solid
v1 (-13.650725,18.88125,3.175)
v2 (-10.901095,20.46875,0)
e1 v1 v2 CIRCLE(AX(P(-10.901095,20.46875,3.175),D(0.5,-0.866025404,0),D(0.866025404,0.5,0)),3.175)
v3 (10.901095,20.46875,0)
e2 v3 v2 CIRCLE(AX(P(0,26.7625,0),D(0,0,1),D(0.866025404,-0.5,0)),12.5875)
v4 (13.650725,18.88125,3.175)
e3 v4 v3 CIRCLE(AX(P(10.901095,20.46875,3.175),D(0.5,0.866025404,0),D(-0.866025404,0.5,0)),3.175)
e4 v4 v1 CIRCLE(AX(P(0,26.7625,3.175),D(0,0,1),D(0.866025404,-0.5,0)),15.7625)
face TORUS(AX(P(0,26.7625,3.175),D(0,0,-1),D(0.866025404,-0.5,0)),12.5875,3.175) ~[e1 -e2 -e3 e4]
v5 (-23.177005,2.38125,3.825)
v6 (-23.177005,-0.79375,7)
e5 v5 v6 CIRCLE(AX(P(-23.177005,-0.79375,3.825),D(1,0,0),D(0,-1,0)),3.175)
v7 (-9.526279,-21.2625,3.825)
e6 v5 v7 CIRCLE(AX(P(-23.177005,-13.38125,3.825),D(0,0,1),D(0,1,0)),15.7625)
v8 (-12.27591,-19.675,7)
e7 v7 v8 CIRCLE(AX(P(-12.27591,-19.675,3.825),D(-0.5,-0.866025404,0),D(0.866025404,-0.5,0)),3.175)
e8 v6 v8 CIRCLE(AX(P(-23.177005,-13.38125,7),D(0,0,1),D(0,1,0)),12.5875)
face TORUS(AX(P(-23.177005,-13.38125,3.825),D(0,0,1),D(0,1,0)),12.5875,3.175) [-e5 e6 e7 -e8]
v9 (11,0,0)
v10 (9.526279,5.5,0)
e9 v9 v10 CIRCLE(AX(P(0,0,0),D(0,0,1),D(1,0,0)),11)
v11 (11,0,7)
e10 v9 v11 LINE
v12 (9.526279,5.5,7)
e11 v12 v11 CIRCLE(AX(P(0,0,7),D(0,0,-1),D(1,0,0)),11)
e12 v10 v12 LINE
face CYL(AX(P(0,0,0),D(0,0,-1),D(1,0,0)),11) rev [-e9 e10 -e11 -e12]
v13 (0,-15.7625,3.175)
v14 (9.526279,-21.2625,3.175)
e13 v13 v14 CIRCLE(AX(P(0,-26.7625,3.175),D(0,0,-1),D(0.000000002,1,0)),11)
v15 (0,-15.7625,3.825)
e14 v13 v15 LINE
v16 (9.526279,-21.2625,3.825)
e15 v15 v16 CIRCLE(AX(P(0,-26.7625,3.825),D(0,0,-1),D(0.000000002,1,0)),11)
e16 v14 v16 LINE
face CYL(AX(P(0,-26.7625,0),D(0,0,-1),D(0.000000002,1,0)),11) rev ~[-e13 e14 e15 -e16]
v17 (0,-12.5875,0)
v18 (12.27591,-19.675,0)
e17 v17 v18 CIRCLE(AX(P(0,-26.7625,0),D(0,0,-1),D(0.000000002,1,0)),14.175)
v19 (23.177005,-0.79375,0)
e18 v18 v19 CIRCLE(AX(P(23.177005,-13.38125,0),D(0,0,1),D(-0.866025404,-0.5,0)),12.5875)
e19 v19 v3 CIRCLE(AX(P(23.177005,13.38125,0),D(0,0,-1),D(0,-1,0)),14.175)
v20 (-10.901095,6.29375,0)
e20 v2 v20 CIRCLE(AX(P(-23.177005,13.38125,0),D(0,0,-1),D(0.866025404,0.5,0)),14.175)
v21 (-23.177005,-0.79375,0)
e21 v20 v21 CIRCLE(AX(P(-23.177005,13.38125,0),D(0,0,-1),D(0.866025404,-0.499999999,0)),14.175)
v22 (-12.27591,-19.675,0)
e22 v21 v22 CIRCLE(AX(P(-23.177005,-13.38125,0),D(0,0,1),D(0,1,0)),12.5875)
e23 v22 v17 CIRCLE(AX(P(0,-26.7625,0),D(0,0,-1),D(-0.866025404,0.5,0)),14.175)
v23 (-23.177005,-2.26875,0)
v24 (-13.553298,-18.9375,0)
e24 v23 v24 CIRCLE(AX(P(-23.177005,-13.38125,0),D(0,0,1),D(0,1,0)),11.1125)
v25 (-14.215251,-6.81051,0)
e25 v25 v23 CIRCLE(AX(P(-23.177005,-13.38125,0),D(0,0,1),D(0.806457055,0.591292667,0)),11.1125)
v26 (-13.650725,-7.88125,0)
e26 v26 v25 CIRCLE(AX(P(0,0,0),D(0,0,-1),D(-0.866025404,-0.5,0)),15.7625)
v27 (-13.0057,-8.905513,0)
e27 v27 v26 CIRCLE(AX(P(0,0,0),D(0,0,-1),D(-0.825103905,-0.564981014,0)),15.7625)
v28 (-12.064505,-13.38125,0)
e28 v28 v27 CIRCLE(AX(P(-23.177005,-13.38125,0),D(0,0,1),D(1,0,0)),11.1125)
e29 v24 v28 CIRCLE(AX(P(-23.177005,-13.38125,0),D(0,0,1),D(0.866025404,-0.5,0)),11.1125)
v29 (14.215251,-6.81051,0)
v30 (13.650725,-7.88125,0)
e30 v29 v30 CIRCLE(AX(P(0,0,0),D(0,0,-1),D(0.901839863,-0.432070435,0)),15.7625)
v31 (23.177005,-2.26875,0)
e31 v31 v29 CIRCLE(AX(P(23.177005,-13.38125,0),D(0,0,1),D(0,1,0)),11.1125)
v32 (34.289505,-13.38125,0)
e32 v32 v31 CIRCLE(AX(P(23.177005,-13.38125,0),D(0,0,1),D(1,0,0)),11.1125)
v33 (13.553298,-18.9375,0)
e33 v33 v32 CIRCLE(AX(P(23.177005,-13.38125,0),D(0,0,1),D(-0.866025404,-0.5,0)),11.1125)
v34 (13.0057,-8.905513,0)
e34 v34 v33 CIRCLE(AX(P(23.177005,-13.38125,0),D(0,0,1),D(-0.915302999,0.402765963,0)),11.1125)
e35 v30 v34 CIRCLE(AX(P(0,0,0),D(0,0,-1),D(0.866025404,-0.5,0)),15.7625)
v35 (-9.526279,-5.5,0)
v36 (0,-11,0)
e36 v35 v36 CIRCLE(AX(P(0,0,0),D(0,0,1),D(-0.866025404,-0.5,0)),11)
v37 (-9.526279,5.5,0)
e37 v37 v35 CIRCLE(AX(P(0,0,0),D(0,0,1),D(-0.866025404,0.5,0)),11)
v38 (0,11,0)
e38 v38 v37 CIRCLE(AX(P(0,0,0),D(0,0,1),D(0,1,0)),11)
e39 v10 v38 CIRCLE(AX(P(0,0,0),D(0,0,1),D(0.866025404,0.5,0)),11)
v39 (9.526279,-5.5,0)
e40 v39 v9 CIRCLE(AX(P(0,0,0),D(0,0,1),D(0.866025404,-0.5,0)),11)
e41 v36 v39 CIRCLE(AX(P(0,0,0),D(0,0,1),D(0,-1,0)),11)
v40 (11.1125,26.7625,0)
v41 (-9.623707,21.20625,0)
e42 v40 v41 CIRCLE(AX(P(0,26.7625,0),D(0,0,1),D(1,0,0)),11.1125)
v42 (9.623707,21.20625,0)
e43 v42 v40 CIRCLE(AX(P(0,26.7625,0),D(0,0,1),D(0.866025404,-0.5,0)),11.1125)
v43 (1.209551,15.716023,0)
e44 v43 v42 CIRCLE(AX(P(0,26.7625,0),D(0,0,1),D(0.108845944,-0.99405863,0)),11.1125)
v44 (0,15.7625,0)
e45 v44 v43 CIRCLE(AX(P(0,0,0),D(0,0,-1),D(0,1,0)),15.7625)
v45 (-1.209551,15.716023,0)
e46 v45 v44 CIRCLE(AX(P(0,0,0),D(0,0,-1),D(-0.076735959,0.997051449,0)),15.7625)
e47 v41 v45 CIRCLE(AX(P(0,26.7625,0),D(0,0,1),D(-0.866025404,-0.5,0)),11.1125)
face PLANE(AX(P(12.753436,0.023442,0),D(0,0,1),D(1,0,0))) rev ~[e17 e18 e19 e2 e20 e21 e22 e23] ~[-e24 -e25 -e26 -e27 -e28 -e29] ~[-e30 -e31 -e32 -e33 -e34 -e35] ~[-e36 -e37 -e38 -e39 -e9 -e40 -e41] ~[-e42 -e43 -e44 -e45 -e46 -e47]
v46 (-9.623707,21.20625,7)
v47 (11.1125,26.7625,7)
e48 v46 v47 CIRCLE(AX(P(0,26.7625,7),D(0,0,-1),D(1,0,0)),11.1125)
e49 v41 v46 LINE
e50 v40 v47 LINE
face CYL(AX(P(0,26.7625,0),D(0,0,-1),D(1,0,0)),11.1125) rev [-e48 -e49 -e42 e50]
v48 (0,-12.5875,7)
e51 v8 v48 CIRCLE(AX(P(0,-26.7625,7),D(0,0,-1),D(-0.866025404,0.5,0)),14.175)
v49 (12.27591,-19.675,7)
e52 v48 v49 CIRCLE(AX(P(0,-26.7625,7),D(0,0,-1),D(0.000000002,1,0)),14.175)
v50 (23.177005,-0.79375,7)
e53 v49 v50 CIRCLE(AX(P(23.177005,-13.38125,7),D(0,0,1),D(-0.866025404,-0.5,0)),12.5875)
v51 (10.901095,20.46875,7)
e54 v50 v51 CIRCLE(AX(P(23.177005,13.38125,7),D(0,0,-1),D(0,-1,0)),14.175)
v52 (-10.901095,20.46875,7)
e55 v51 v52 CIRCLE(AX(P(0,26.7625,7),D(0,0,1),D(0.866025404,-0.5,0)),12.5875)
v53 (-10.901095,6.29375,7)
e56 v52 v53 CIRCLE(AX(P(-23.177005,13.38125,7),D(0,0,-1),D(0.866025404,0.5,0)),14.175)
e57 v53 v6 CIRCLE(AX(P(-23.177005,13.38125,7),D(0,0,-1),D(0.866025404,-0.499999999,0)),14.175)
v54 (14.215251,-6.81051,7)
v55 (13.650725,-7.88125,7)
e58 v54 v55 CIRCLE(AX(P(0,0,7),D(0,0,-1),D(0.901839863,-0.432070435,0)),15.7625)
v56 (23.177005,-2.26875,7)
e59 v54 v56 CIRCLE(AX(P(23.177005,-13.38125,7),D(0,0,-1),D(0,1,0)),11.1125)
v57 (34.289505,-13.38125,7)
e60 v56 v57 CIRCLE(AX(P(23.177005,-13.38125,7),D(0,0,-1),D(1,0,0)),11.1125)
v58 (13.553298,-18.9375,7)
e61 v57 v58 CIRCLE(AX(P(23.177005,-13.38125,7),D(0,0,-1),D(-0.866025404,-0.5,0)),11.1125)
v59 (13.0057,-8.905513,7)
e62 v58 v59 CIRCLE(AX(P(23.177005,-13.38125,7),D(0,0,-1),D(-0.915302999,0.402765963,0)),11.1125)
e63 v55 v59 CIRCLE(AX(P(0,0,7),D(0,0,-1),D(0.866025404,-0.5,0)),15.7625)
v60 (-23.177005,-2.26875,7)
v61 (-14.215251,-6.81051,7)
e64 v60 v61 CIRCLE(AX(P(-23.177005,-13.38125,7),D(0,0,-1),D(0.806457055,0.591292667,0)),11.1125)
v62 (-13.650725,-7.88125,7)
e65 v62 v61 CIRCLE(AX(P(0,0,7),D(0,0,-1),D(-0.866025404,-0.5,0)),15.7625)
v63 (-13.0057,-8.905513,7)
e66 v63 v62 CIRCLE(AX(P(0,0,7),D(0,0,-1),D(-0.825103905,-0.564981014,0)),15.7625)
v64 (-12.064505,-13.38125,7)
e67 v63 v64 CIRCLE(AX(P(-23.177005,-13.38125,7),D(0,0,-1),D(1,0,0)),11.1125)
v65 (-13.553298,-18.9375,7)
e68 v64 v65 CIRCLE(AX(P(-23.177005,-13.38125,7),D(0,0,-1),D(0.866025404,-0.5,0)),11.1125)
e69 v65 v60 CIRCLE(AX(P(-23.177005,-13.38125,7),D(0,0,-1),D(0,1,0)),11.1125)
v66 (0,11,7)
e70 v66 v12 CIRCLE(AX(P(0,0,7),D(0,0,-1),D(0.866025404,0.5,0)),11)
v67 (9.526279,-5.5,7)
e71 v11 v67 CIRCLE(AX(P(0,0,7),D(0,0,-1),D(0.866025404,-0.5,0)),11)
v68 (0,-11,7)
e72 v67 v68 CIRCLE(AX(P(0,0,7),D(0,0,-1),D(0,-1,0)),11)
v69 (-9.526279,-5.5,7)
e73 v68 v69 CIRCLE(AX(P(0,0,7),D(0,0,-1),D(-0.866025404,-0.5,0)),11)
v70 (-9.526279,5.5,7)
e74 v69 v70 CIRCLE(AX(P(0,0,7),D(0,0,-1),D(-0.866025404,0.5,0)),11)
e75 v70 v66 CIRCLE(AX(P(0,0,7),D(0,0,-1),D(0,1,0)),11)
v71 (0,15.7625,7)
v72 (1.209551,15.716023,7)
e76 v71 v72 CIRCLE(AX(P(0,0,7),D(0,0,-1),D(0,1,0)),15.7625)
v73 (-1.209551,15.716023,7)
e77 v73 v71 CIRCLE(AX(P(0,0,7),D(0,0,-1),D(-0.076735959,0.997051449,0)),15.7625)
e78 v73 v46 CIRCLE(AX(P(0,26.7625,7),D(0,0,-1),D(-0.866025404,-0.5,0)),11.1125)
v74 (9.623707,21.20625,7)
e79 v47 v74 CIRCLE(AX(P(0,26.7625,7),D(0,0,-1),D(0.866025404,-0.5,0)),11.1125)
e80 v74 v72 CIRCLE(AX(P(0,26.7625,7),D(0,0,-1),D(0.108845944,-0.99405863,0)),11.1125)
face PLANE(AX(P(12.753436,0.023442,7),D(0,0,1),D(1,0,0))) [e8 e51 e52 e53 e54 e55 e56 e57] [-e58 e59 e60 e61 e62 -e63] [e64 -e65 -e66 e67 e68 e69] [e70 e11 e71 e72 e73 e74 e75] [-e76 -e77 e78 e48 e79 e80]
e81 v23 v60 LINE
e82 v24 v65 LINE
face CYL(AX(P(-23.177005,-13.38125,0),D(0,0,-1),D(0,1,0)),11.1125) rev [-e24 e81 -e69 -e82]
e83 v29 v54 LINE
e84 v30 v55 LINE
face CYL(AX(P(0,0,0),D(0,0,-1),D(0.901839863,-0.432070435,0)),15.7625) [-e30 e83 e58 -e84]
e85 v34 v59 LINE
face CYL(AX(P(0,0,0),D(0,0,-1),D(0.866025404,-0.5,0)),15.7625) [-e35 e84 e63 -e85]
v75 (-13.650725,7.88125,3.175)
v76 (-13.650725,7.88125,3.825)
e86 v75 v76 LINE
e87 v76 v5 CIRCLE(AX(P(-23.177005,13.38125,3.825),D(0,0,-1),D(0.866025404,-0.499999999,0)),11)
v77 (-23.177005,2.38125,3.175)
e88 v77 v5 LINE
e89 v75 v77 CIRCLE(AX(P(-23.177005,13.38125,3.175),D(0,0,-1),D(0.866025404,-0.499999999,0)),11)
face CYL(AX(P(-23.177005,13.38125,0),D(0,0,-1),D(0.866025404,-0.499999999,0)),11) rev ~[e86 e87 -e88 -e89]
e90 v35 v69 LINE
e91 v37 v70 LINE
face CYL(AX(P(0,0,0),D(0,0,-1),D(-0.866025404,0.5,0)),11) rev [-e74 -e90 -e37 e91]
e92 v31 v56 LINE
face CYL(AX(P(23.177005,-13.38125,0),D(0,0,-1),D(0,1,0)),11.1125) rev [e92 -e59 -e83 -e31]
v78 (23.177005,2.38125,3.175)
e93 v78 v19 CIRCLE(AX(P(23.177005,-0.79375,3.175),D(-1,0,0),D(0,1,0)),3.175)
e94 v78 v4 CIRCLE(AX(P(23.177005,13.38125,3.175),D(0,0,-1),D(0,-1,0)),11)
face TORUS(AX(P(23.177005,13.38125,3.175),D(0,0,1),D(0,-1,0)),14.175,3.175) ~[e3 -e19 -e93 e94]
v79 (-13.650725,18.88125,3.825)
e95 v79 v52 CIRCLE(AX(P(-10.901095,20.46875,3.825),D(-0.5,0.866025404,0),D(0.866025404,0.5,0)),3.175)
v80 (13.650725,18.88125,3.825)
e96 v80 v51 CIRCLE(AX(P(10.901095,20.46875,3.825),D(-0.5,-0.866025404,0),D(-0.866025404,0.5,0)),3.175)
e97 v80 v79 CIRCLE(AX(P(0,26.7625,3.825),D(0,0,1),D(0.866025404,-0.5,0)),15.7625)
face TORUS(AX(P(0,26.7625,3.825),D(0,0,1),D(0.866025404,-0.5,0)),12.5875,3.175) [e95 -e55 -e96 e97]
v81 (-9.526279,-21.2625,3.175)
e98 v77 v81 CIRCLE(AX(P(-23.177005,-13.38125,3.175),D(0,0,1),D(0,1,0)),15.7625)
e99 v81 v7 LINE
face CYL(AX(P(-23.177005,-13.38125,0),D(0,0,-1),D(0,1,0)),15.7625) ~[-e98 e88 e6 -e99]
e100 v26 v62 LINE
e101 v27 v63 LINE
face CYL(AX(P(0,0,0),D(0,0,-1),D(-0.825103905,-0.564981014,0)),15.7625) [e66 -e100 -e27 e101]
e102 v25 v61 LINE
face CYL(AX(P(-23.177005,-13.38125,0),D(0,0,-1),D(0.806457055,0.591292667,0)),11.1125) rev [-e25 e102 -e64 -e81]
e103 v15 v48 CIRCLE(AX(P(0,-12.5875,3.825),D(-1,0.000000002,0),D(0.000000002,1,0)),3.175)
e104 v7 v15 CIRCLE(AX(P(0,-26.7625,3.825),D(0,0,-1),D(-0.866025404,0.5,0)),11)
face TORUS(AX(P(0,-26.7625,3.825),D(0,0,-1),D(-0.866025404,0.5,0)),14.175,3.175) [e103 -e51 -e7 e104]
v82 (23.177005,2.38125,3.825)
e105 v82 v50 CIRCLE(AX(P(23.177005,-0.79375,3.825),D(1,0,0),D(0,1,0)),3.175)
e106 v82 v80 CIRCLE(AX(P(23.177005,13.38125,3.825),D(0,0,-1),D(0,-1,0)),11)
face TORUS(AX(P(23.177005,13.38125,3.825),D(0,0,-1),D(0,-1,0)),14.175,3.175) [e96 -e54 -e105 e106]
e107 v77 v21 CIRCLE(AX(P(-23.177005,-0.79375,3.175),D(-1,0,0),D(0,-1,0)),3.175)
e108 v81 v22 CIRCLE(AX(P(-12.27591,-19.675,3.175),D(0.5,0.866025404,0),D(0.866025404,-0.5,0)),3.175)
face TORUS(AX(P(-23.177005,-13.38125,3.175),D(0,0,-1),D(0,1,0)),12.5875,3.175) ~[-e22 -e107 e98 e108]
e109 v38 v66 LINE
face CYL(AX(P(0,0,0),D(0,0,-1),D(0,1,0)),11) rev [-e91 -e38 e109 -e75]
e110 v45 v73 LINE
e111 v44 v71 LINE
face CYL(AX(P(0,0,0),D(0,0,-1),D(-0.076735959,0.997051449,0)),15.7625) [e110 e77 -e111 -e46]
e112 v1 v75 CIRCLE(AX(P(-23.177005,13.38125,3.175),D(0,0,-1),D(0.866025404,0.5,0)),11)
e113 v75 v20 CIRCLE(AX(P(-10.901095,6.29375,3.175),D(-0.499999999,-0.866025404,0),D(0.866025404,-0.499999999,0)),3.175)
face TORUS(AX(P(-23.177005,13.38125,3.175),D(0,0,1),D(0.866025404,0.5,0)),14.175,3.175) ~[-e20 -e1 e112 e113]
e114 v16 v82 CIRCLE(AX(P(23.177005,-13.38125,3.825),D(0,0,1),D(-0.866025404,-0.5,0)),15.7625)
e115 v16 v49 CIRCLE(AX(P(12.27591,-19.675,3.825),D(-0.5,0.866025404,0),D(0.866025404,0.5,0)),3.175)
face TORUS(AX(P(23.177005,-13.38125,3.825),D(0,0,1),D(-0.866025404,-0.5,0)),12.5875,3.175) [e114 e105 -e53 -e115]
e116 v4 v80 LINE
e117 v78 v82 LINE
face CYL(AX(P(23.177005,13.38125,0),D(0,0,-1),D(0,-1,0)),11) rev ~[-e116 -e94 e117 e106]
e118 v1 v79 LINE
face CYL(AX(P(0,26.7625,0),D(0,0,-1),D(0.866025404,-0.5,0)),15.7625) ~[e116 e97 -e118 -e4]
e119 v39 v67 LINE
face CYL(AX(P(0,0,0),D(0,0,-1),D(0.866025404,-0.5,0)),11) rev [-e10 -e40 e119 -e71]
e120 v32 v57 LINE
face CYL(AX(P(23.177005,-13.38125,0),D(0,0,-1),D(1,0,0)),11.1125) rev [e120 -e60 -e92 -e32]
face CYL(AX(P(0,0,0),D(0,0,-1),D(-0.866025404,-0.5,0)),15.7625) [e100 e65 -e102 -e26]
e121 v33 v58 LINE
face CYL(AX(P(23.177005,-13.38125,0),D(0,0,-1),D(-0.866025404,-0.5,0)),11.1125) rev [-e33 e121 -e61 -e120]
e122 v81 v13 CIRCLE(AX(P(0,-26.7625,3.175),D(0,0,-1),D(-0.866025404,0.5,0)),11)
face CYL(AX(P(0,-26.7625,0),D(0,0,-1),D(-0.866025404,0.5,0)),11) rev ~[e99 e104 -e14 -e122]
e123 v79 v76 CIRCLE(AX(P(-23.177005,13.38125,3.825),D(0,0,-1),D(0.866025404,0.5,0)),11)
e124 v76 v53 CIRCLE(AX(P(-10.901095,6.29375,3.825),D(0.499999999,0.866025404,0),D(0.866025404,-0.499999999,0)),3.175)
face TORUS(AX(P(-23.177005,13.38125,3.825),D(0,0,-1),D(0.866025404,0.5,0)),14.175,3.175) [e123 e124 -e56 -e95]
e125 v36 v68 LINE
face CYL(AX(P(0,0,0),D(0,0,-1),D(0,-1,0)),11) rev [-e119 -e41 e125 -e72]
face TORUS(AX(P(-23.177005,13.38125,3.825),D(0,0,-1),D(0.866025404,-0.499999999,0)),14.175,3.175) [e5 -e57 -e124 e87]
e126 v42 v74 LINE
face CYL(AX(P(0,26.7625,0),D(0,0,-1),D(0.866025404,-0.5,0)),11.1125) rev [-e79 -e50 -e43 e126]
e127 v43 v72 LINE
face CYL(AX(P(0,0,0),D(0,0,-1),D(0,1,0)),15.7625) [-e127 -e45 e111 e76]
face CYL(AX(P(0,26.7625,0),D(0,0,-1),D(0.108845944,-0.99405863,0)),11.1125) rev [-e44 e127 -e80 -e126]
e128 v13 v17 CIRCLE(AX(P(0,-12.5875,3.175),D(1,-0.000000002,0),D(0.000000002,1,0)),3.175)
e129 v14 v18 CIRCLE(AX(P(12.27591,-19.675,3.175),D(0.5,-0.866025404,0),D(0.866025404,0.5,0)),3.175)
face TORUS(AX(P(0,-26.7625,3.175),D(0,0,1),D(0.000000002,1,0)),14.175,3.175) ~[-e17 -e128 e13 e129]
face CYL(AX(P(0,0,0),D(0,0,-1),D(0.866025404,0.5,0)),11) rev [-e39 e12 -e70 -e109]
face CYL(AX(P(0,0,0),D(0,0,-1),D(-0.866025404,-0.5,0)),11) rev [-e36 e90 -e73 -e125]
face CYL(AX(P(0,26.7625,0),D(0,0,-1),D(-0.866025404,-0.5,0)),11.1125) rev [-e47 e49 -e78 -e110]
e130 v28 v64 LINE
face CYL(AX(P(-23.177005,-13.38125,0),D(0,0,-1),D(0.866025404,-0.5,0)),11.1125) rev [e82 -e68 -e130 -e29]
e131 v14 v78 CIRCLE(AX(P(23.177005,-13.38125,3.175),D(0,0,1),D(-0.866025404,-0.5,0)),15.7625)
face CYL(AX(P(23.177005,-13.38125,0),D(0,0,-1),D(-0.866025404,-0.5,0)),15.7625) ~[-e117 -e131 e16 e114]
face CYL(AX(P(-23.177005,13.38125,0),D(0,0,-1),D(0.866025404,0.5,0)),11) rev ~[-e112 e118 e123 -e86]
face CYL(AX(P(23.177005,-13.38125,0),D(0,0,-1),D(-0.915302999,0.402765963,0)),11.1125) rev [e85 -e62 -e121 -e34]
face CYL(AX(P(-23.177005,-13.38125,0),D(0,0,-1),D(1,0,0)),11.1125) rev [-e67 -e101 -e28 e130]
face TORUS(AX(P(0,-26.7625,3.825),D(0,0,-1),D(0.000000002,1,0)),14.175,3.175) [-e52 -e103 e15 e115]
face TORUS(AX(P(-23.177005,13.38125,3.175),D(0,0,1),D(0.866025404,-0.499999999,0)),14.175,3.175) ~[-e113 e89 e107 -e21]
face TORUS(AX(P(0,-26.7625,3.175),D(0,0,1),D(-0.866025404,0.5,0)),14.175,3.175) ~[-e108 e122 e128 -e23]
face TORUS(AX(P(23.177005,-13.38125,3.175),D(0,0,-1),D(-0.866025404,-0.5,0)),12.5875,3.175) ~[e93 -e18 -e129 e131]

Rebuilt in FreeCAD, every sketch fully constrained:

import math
import FreeCAD as App
import Part
import Sketcher
from FreeCAD import Vector
Q = App.Units.Quantity


def edges_at(feature, points):
    """Names of the edges that pass closest to the given points."""
    edges = feature.Shape.Edges
    near = lambda p: min(range(len(edges)), key=lambda i: edges[i].distToShape(Part.Vertex(*p))[0])
    return sorted({f"Edge{near(p) + 1}" for p in points})

doc = App.newDocument("Part")
body = doc.addObject("PartDesign::Body", "Body")

# Sketch on XY plane
sketch1 = body.newObject("Sketcher::SketchObject", "Sketch")
sketch1.AttachmentSupport = (doc.getObject("XY_Plane"), [""])
sketch1.MapMode = "FlatFace"
sketch1.addGeometry([
    Part.ArcOfCircle(Part.Circle(Vector(-23.177005, 13.38125, 0), Vector(0, 0, 1), 11), math.radians(-90), math.radians(-30)),  # 0
    Part.ArcOfCircle(Part.Circle(Vector(-23.177005, -13.38125, 0), Vector(0, 0, 1), 15.7625), math.radians(90), math.radians(330)),  # 1
    Part.ArcOfCircle(Part.Circle(Vector(0, -26.7625, 0), Vector(0, 0, 1), 11), math.radians(90), math.radians(150)),  # 2
    Part.ArcOfCircle(Part.Circle(Vector(0, -26.7625, 0), Vector(0, 0, 1), 11), math.radians(30), math.radians(90)),  # 3
    Part.ArcOfCircle(Part.Circle(Vector(23.177005, -13.38125, 0), Vector(0, 0, 1), 15.7625), math.radians(-150), math.radians(90)),  # 4
    Part.ArcOfCircle(Part.Circle(Vector(23.177005, 13.38125, 0), Vector(0, 0, 1), 11), math.radians(150), math.radians(270)),  # 5
    Part.ArcOfCircle(Part.Circle(Vector(0, 26.7625, 0), Vector(0, 0, 1), 15.7625), math.radians(-30), math.radians(210)),  # 6
    Part.ArcOfCircle(Part.Circle(Vector(-23.177005, 13.38125, 0), Vector(0, 0, 1), 11), math.radians(-30), math.radians(30)),  # 7
], False)
sketch1.addConstraint([
    Sketcher.Constraint("Tangent", 0, 1, 1, 1),
    Sketcher.Constraint("Tangent", 1, 2, 2, 2),
    Sketcher.Constraint("Tangent", 2, 1, 3, 2),
    Sketcher.Constraint("Tangent", 3, 1, 4, 1),
    Sketcher.Constraint("Tangent", 4, 2, 5, 2),
    Sketcher.Constraint("Tangent", 5, 1, 6, 1),
    Sketcher.Constraint("Tangent", 6, 2, 7, 2),
    Sketcher.Constraint("Tangent", 7, 1, 0, 2),
    Sketcher.Constraint("Equal", 0, 2),
    Sketcher.Constraint("Equal", 2, 3),
    Sketcher.Constraint("Equal", 1, 4),
    Sketcher.Constraint("Equal", 3, 5),
    Sketcher.Constraint("Equal", 4, 6),
    Sketcher.Constraint("Equal", 5, 7),
    Sketcher.Constraint("Symmetric", 0, 3, 4, 3, -1, 1),
    Sketcher.Constraint("Symmetric", 1, 3, 4, 3, -2),
    Sketcher.Constraint("PointOnObject", 6, 3, -2),
    Sketcher.Constraint("PointOnObject", 2, 1, -2),
    Sketcher.Constraint("Vertical", 6, 2, 7, 1),
    Sketcher.Constraint("Radius", 0, Q("11 mm")),
    Sketcher.Constraint("DistanceY", 7, 1, 6, 2, Q("11 mm")),
    Sketcher.Constraint("Radius", 1, Q("15.7625 mm")),
])
pad1 = body.newObject("PartDesign::Pad", "Pad")
pad1.Profile = sketch1
pad1.Length = 7
doc.recompute()

fillet = body.newObject("PartDesign::Fillet", "Fillet")
fillet.Base = (pad1, edges_at(pad1, [
    (-12.177, 13.381, 7),
    (-36.828, -21.262, 7),
    (-5.5, -17.236, 7),
    (36.828, -21.262, 7),
    (13.651, 7.881, 7),
    (0, 42.525, 7),
    (-12.177, 13.381, 0),
    (-36.828, -21.262, 0),
    (-5.5, -17.236, 0),
    (36.828, -21.262, 0),
    (13.651, 7.881, 0),
    (0, 42.525, 0),
]))
fillet.Radius = 3.175

# Sketch on XY plane
sketch2 = body.newObject("Sketcher::SketchObject", "Sketch001")
sketch2.AttachmentSupport = (doc.getObject("XY_Plane"), [""])
sketch2.MapMode = "FlatFace"
sketch2.addGeometry([
    Part.ArcOfCircle(Part.Circle(Vector(23.177005, -13.38125, 0), Vector(0, 0, 1), 11.1125), math.radians(90), math.radians(143.751206)),  # 0
    Part.ArcOfCircle(Part.Circle(Vector(0, 0, 0), Vector(0, 0, 1), 15.7625), math.radians(-30), math.radians(-25.599027)),  # 1
    Part.ArcOfCircle(Part.Circle(Vector(0, 0, 0), Vector(0, 0, 1), 15.7625), math.radians(-34.400973), math.radians(-30)),  # 2
    Part.ArcOfCircle(Part.Circle(Vector(23.177005, -13.38125, 0), Vector(0, 0, 1), 11.1125), math.radians(156.248794), math.radians(210)),  # 3
    Part.ArcOfCircle(Part.Circle(Vector(23.177005, -13.38125, 0), Vector(0, 0, 1), 11.1125), math.radians(-150), math.radians(0)),  # 4
    Part.ArcOfCircle(Part.Circle(Vector(23.177005, -13.38125, 0), Vector(0, 0, 1), 11.1125), math.radians(0), math.radians(90)),  # 5
    Part.ArcOfCircle(Part.Circle(Vector(0, 0, 0), Vector(0, 0, 1), 11), math.radians(-30), math.radians(0)),  # 6
    Part.ArcOfCircle(Part.Circle(Vector(0, 0, 0), Vector(0, 0, 1), 11), math.radians(0), math.radians(30)),  # 7
    Part.ArcOfCircle(Part.Circle(Vector(0, 0, 0), Vector(0, 0, 1), 11), math.radians(30), math.radians(90)),  # 8
    Part.ArcOfCircle(Part.Circle(Vector(0, 0, 0), Vector(0, 0, 1), 11), math.radians(90), math.radians(150)),  # 9
    Part.ArcOfCircle(Part.Circle(Vector(0, 0, 0), Vector(0, 0, 1), 11), math.radians(150), math.radians(210)),  # 10
    Part.ArcOfCircle(Part.Circle(Vector(0, 0, 0), Vector(0, 0, 1), 11), math.radians(-150), math.radians(-90)),  # 11
    Part.ArcOfCircle(Part.Circle(Vector(0, 0, 0), Vector(0, 0, 1), 11), math.radians(-90), math.radians(-30)),  # 12
    Part.ArcOfCircle(Part.Circle(Vector(0, 0, 0), Vector(0, 0, 1), 15.7625), math.radians(-154.400973), math.radians(-150)),  # 13
    Part.ArcOfCircle(Part.Circle(Vector(-23.177005, -13.38125, 0), Vector(0, 0, 1), 11.1125), math.radians(36.248794), math.radians(90)),  # 14
    Part.ArcOfCircle(Part.Circle(Vector(-23.177005, -13.38125, 0), Vector(0, 0, 1), 11.1125), math.radians(90), math.radians(330)),  # 15
    Part.ArcOfCircle(Part.Circle(Vector(-23.177005, -13.38125, 0), Vector(0, 0, 1), 11.1125), math.radians(-30), math.radians(0)),  # 16
    Part.ArcOfCircle(Part.Circle(Vector(-23.177005, -13.38125, 0), Vector(0, 0, 1), 11.1125), math.radians(0), math.radians(23.751206)),  # 17
    Part.ArcOfCircle(Part.Circle(Vector(0, 0, 0), Vector(0, 0, 1), 15.7625), math.radians(-150), math.radians(-145.599027)),  # 18
    Part.ArcOfCircle(Part.Circle(Vector(0, 0, 0), Vector(0, 0, 1), 15.7625), math.radians(85.599027), math.radians(90)),  # 19
    Part.ArcOfCircle(Part.Circle(Vector(0, 26.7625, 0), Vector(0, 0, 1), 11.1125), math.radians(-83.751206), math.radians(-30)),  # 20
    Part.ArcOfCircle(Part.Circle(Vector(0, 26.7625, 0), Vector(0, 0, 1), 11.1125), math.radians(-30), math.radians(0)),  # 21
    Part.ArcOfCircle(Part.Circle(Vector(0, 26.7625, 0), Vector(0, 0, 1), 11.1125), math.radians(0), math.radians(210)),  # 22
    Part.ArcOfCircle(Part.Circle(Vector(0, 26.7625, 0), Vector(0, 0, 1), 11.1125), math.radians(-150), math.radians(-96.248794)),  # 23
    Part.ArcOfCircle(Part.Circle(Vector(0, 0, 0), Vector(0, 0, 1), 15.7625), math.radians(90), math.radians(94.400973)),  # 24
], False)
sketch2.addConstraint([
    Sketcher.Constraint("Coincident", 0, 2, 1, 2),
    Sketcher.Constraint("Tangent", 1, 1, 2, 2),
    Sketcher.Constraint("Coincident", 2, 1, 3, 1),
    Sketcher.Constraint("Tangent", 3, 2, 4, 1),
    Sketcher.Constraint("Tangent", 4, 2, 5, 1),
    Sketcher.Constraint("Tangent", 5, 2, 0, 1),
    Sketcher.Constraint("Tangent", 6, 2, 7, 1),
    Sketcher.Constraint("Tangent", 7, 2, 8, 1),
    Sketcher.Constraint("Tangent", 8, 2, 9, 1),
    Sketcher.Constraint("Tangent", 9, 2, 10, 1),
    Sketcher.Constraint("Tangent", 10, 2, 11, 1),
    Sketcher.Constraint("Tangent", 11, 2, 12, 1),
    Sketcher.Constraint("Tangent", 12, 2, 6, 1),
    Sketcher.Constraint("Coincident", 13, 1, 14, 1),
    Sketcher.Constraint("Tangent", 14, 2, 15, 1),
    Sketcher.Constraint("Tangent", 15, 2, 16, 1),
    Sketcher.Constraint("Tangent", 16, 2, 17, 1),
    Sketcher.Constraint("Coincident", 17, 2, 18, 2),
    Sketcher.Constraint("Tangent", 18, 1, 13, 2),
    Sketcher.Constraint("Coincident", 19, 1, 20, 1),
    Sketcher.Constraint("Tangent", 20, 2, 21, 1),
    Sketcher.Constraint("Tangent", 21, 2, 22, 1),
    Sketcher.Constraint("Tangent", 22, 2, 23, 1),
    Sketcher.Constraint("Coincident", 23, 2, 24, 2),
    Sketcher.Constraint("Tangent", 24, 1, 19, 2),
    Sketcher.Constraint("Coincident", 1, 3, -1, 1),
    Sketcher.Constraint("Coincident", 6, 3, -1, 1),
    Sketcher.Constraint("Coincident", 8, 3, -1, 1),
    Sketcher.Constraint("Coincident", 10, 3, -1, 1),
    Sketcher.Constraint("Coincident", 13, 3, -1, 1),
    Sketcher.Constraint("Coincident", 19, 3, -1, 1),
    Sketcher.Constraint("Coincident", 3, 3, 0, 3),
    Sketcher.Constraint("Coincident", 16, 3, 14, 3),
    Sketcher.Constraint("Coincident", 22, 3, 20, 3),
    Sketcher.Constraint("Equal", 1, 2),
    Sketcher.Constraint("Equal", 0, 3),
    Sketcher.Constraint("Equal", 2, 13),
    Sketcher.Constraint("Equal", 5, 14),
    Sketcher.Constraint("Equal", 16, 17),
    Sketcher.Constraint("Equal", 13, 18),
    Sketcher.Constraint("Equal", 18, 19),
    Sketcher.Constraint("Equal", 17, 20),
    Sketcher.Constraint("Equal", 22, 23),
    Sketcher.Constraint("Equal", 19, 24),
    Sketcher.Constraint("Symmetric", 0, 3, 14, 3, -2),
    Sketcher.Constraint("Symmetric", 20, 2, 22, 2, -2),
    Sketcher.Constraint("PointOnObject", 6, 2, -1),
    Sketcher.Constraint("PointOnObject", 8, 2, -2),
    Sketcher.Constraint("PointOnObject", 11, 2, -2),
    Sketcher.Constraint("PointOnObject", 24, 1, -2),
    Sketcher.Constraint("Horizontal", 17, 3, 4, 2),
    Sketcher.Constraint("Horizontal", 7, 2, 9, 2),
    Sketcher.Constraint("Horizontal", 10, 2, 12, 2),
    Sketcher.Constraint("Horizontal", 3, 2, 15, 2),
    Sketcher.Constraint("Horizontal", 4, 2, 16, 2),
    Sketcher.Constraint("Horizontal", 1, 1, 18, 1),
    Sketcher.Constraint("Horizontal", 23, 3, 21, 2),
    Sketcher.Constraint("Vertical", 4, 3, 5, 2),
    Sketcher.Constraint("Vertical", 9, 2, 10, 2),
    Sketcher.Constraint("Vertical", 17, 3, 14, 2),
    Sketcher.Constraint("Radius", 6, Q("11 mm")),
    Sketcher.Constraint("DistanceY", 10, 2, 9, 2, Q("11 mm")),
    Sketcher.Constraint("DistanceY", 24, 1, 20, 3, Q("11 mm")),
    Sketcher.Constraint("Radius", 0, Q("11.1125 mm")),
    Sketcher.Constraint("Radius", 1, Q("15.7625 mm")),
    Sketcher.Constraint("DistanceY", 3, 3, 1, 1, Q("5.5 mm")),
    Sketcher.Constraint("DistanceX", -1, 1, 2, 1, Q("13.0057 mm")),
    Sketcher.Constraint("DistanceY", 3, 2, -1, 1, Q("18.9375 mm")),
    Sketcher.Constraint("DistanceY", 0, 3, -1, 1, Q("13.38125 mm")),
    Sketcher.Constraint("DistanceY", -1, 1, 20, 2, Q("21.20625 mm")),
])
pocket1 = body.newObject("PartDesign::Pocket", "Pocket")
pocket1.Profile = sketch2
pocket1.Type = "ThroughAll"
pocket1.Reversed = True

doc.recompute()
